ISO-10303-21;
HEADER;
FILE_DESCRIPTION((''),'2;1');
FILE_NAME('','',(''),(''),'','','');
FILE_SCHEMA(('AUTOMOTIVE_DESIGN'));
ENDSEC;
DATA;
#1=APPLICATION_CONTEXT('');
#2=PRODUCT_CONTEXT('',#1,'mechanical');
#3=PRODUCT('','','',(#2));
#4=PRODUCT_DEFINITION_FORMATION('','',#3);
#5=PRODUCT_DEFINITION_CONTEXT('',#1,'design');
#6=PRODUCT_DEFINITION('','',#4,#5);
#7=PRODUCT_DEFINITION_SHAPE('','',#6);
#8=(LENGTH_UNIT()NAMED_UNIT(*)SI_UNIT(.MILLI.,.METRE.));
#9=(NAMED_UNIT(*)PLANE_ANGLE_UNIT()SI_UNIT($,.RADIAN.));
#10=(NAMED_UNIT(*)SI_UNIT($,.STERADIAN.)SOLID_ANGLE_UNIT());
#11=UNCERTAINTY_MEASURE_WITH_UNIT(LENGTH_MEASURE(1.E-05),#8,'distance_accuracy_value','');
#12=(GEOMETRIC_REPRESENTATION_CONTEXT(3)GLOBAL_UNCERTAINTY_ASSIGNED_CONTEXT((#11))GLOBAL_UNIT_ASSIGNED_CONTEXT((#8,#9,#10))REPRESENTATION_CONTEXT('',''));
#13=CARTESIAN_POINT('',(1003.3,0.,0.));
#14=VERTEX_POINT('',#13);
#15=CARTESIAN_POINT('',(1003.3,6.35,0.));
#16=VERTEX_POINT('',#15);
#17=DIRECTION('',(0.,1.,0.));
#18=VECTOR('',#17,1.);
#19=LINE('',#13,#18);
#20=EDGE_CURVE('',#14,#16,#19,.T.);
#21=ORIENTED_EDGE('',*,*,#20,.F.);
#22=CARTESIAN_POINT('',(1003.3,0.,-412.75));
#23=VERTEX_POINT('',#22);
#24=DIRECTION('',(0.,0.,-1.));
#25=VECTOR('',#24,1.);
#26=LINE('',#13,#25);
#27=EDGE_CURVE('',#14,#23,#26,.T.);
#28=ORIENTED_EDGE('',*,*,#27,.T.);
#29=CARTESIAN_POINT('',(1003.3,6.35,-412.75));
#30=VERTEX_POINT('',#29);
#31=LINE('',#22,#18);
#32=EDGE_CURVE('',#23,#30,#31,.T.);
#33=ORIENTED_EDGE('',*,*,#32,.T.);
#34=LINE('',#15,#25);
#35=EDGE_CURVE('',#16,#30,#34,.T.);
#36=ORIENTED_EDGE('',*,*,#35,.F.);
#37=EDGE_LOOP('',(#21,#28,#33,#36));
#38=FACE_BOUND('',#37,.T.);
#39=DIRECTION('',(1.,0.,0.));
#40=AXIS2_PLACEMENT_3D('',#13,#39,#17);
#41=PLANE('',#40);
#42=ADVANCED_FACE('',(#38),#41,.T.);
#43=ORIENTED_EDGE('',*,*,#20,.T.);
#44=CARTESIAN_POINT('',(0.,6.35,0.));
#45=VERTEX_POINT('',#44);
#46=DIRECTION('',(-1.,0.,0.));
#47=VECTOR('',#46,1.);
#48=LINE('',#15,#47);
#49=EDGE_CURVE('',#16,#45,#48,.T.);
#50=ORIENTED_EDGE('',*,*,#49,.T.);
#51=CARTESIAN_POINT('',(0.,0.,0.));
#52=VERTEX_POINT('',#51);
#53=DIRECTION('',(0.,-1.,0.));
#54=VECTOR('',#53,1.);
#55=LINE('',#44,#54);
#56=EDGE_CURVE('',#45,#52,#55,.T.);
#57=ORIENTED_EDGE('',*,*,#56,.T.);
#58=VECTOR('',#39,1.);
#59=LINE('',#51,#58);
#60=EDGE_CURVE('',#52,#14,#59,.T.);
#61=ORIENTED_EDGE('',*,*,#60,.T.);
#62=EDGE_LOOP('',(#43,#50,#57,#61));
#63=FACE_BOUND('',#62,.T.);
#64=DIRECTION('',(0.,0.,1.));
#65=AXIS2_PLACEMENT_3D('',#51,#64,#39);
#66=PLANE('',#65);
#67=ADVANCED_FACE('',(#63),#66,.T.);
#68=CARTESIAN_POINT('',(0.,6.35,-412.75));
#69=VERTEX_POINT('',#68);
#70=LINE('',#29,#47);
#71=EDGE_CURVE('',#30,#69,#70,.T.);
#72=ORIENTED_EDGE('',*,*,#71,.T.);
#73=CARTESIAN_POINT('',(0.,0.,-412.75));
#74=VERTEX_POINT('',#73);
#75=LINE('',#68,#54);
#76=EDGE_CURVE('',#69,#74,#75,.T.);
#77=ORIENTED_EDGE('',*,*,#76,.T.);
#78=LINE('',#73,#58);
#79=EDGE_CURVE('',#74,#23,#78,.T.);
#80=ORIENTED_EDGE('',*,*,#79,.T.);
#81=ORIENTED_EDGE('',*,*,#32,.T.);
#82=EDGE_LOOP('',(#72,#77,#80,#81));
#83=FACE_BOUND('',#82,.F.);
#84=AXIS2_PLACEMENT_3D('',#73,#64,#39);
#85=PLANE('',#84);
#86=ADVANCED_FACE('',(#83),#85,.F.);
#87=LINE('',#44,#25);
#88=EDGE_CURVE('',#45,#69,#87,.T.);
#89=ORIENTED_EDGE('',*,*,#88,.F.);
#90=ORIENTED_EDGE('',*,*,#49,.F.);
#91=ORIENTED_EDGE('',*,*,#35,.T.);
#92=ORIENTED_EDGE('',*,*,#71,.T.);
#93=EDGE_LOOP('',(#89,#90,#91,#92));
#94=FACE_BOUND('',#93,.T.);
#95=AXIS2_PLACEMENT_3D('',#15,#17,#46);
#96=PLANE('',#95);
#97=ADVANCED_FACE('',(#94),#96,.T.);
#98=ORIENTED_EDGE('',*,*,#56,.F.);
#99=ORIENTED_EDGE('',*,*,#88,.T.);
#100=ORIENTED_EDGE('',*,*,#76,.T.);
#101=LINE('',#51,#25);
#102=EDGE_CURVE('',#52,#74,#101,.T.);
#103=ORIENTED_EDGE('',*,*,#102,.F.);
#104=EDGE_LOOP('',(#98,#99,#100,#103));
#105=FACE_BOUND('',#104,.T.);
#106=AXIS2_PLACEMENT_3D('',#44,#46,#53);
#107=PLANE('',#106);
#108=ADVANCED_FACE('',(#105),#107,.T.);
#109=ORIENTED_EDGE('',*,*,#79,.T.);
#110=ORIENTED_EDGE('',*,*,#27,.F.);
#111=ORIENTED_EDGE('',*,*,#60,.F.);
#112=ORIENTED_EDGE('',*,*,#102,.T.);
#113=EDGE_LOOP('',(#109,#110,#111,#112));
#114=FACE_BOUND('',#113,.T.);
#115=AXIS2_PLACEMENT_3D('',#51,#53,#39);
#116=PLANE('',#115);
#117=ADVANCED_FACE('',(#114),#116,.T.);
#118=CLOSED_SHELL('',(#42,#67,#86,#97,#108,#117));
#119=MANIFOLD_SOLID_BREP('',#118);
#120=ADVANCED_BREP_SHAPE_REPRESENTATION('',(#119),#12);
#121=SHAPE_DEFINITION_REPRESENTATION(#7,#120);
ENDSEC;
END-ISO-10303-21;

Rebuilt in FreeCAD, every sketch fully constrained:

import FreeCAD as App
import Part
import Sketcher
from FreeCAD import Vector
Q = App.Units.Quantity


def add_polygon(sketch, points):
    """Adds a closed chain of lines whose ends are joined by coincident constraints."""
    first, n = sketch.GeometryCount, len(points)
    for a, b in zip(points, points[1:] + points[:1]):
        sketch.addGeometry(Part.LineSegment(App.Vector(*a, 0), App.Vector(*b, 0)), False)
    for i in range(n):
        sketch.addConstraint(Sketcher.Constraint("Coincident", first + i, 2, first + (i + 1) % n, 1))

doc = App.newDocument("Part")
body = doc.addObject("PartDesign::Body", "Body")

# Sketch on XY plane
sketch1 = body.newObject("Sketcher::SketchObject", "Sketch")
sketch1.AttachmentSupport = (doc.getObject("XY_Plane"), [""])
sketch1.MapMode = "FlatFace"
add_polygon(sketch1, [(0, 6), (0, 0), (1003, 0), (1003, 6)])  # lines 0-3
sketch1.addConstraint(Sketcher.Constraint("Vertical", 0))
sketch1.addConstraint(Sketcher.Constraint("Horizontal", 1))
sketch1.addConstraint(Sketcher.Constraint("Vertical", 2))
sketch1.addConstraint(Sketcher.Constraint("Horizontal", 3))
sketch1.addConstraint(Sketcher.Constraint("Coincident", 0, 2, -1, 1))
sketch1.addConstraint(Sketcher.Constraint("DistanceX", 1, 1, 1, 2, Q("39.5 in")))
sketch1.addConstraint(Sketcher.Constraint("DistanceY", 0, 2, 0, 1, Q("0.25 in")))
pad1 = body.newObject("PartDesign::Pad", "Pad")
pad1.Profile = sketch1
pad1.Length = Q("16.25 in")
pad1.Reversed = True

doc.recompute()
